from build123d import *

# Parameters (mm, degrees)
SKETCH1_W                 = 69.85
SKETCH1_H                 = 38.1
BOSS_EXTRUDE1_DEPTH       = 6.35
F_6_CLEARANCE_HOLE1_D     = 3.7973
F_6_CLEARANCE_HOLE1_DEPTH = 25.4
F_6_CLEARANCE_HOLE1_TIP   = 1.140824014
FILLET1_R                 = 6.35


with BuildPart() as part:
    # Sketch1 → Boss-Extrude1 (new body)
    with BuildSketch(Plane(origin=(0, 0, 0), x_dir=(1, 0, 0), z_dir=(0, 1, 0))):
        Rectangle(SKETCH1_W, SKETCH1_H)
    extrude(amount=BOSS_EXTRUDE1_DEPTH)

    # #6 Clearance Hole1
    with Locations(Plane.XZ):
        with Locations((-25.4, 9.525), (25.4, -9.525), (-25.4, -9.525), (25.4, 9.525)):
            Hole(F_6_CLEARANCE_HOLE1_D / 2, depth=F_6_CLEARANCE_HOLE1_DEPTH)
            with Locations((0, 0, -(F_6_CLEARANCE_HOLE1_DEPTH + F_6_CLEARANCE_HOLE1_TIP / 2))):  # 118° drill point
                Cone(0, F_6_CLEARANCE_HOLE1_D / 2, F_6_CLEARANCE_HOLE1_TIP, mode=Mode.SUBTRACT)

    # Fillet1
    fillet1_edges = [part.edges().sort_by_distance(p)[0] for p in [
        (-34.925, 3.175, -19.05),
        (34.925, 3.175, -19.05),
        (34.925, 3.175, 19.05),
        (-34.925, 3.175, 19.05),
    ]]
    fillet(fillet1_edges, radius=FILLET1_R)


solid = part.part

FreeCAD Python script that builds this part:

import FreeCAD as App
import Part
import Sketcher
from FreeCAD import Vector
Q = App.Units.Quantity


def edges_at(feature, points):
    """Names of the edges that pass closest to the given points."""
    edges = feature.Shape.Edges
    near = lambda p: min(range(len(edges)), key=lambda i: edges[i].distToShape(Part.Vertex(*p))[0])
    return sorted({f"Edge{near(p) + 1}" for p in points})


def add_polygon(sketch, points):
    """Adds a closed chain of lines whose ends are joined by coincident constraints."""
    first, n = sketch.GeometryCount, len(points)
    for a, b in zip(points, points[1:] + points[:1]):
        sketch.addGeometry(Part.LineSegment(App.Vector(*a, 0), App.Vector(*b, 0)), False)
    for i in range(n):
        sketch.addConstraint(Sketcher.Constraint("Coincident", first + i, 2, first + (i + 1) % n, 1))

doc = App.newDocument("Part")
body = doc.addObject("PartDesign::Body", "Body")

# Sketch on XZ plane
sketch1 = body.newObject("Sketcher::SketchObject", "Sketch")
sketch1.AttachmentSupport = (doc.getObject("XZ_Plane"), [""])
sketch1.MapMode = "FlatFace"
add_polygon(sketch1, [(-34.925, -19.05), (-34.925, 19.05), (34.925, 19.05), (34.925, -19.05)])  # lines 0-3
sketch1.addConstraint([
    Sketcher.Constraint("Vertical", 0),
    Sketcher.Constraint("Horizontal", 1),
    Sketcher.Constraint("Vertical", 2),
    Sketcher.Constraint("Horizontal", 3),
    Sketcher.Constraint("Symmetric", 0, 2, 2, 2, -1, 1),
    Sketcher.Constraint("DistanceY", 0, 1, 0, 2, Q("1.5 in")),
    Sketcher.Constraint("DistanceX", 1, 1, 1, 2, Q("2.75 in")),
])
pad1 = body.newObject("PartDesign::Pad", "Pad")
pad1.Profile = sketch1
pad1.Length = Q("0.25 in")
pad1.Reversed = True

# Sketch on XZ plane
sketch2 = body.newObject("Sketcher::SketchObject", "Sketch001")
sketch2.AttachmentSupport = (doc.getObject("XZ_Plane"), [""])
sketch2.MapMode = "FlatFace"
sketch2.addGeometry([
    Part.Circle(Vector(-25.4, 9.525, 0), Vector(0, 0, 1), 1.89865),
    Part.Circle(Vector(25.4, -9.525, 0), Vector(0, 0, 1), 1.89865),
    Part.Circle(Vector(-25.4, -9.525, 0), Vector(0, 0, 1), 1.89865),
    Part.Circle(Vector(25.4, 9.525, 0), Vector(0, 0, 1), 1.89865),
], False)
sketch2.addConstraint([
    Sketcher.Constraint("Equal", 0, 1),
    Sketcher.Constraint("Equal", 1, 2),
    Sketcher.Constraint("Equal", 2, 3),
    Sketcher.Constraint("Symmetric", 0, 3, 1, 3, -1, 1),
    Sketcher.Constraint("Symmetric", 2, 3, 3, 3, -1, 1),
    Sketcher.Constraint("Symmetric", 1, 3, 2, 3, -2),
    Sketcher.Constraint("DistanceX", 0, 3, -1, 1, Q("1 in")),
    Sketcher.Constraint("Diameter", 0, Q("0.1495 in")),
    Sketcher.Constraint("DistanceY", 1, 3, 0, 3, Q("0.75 in")),
])
doc.recompute()
hole = body.newObject("PartDesign::Hole", "Hole")
hole.Profile = sketch2
hole.ThreadType = "None"
hole.Diameter = Q("0.1495 in")
hole.DepthType = "Dimension"
hole.Depth = Q("1 in")
hole.DrillPoint = "Angled"
hole.DrillPointAngle = 118
doc.recompute()

fillet = body.newObject("PartDesign::Fillet", "Fillet")
fillet.Base = (hole, edges_at(hole, [
    (-34.925, 3.175, -19.05),
    (34.925, 3.175, -19.05),
    (34.925, 3.175, 19.05),
    (-34.925, 3.175, 19.05),
]))
fillet.Radius = Q("0.25 in")

doc.recompute()
